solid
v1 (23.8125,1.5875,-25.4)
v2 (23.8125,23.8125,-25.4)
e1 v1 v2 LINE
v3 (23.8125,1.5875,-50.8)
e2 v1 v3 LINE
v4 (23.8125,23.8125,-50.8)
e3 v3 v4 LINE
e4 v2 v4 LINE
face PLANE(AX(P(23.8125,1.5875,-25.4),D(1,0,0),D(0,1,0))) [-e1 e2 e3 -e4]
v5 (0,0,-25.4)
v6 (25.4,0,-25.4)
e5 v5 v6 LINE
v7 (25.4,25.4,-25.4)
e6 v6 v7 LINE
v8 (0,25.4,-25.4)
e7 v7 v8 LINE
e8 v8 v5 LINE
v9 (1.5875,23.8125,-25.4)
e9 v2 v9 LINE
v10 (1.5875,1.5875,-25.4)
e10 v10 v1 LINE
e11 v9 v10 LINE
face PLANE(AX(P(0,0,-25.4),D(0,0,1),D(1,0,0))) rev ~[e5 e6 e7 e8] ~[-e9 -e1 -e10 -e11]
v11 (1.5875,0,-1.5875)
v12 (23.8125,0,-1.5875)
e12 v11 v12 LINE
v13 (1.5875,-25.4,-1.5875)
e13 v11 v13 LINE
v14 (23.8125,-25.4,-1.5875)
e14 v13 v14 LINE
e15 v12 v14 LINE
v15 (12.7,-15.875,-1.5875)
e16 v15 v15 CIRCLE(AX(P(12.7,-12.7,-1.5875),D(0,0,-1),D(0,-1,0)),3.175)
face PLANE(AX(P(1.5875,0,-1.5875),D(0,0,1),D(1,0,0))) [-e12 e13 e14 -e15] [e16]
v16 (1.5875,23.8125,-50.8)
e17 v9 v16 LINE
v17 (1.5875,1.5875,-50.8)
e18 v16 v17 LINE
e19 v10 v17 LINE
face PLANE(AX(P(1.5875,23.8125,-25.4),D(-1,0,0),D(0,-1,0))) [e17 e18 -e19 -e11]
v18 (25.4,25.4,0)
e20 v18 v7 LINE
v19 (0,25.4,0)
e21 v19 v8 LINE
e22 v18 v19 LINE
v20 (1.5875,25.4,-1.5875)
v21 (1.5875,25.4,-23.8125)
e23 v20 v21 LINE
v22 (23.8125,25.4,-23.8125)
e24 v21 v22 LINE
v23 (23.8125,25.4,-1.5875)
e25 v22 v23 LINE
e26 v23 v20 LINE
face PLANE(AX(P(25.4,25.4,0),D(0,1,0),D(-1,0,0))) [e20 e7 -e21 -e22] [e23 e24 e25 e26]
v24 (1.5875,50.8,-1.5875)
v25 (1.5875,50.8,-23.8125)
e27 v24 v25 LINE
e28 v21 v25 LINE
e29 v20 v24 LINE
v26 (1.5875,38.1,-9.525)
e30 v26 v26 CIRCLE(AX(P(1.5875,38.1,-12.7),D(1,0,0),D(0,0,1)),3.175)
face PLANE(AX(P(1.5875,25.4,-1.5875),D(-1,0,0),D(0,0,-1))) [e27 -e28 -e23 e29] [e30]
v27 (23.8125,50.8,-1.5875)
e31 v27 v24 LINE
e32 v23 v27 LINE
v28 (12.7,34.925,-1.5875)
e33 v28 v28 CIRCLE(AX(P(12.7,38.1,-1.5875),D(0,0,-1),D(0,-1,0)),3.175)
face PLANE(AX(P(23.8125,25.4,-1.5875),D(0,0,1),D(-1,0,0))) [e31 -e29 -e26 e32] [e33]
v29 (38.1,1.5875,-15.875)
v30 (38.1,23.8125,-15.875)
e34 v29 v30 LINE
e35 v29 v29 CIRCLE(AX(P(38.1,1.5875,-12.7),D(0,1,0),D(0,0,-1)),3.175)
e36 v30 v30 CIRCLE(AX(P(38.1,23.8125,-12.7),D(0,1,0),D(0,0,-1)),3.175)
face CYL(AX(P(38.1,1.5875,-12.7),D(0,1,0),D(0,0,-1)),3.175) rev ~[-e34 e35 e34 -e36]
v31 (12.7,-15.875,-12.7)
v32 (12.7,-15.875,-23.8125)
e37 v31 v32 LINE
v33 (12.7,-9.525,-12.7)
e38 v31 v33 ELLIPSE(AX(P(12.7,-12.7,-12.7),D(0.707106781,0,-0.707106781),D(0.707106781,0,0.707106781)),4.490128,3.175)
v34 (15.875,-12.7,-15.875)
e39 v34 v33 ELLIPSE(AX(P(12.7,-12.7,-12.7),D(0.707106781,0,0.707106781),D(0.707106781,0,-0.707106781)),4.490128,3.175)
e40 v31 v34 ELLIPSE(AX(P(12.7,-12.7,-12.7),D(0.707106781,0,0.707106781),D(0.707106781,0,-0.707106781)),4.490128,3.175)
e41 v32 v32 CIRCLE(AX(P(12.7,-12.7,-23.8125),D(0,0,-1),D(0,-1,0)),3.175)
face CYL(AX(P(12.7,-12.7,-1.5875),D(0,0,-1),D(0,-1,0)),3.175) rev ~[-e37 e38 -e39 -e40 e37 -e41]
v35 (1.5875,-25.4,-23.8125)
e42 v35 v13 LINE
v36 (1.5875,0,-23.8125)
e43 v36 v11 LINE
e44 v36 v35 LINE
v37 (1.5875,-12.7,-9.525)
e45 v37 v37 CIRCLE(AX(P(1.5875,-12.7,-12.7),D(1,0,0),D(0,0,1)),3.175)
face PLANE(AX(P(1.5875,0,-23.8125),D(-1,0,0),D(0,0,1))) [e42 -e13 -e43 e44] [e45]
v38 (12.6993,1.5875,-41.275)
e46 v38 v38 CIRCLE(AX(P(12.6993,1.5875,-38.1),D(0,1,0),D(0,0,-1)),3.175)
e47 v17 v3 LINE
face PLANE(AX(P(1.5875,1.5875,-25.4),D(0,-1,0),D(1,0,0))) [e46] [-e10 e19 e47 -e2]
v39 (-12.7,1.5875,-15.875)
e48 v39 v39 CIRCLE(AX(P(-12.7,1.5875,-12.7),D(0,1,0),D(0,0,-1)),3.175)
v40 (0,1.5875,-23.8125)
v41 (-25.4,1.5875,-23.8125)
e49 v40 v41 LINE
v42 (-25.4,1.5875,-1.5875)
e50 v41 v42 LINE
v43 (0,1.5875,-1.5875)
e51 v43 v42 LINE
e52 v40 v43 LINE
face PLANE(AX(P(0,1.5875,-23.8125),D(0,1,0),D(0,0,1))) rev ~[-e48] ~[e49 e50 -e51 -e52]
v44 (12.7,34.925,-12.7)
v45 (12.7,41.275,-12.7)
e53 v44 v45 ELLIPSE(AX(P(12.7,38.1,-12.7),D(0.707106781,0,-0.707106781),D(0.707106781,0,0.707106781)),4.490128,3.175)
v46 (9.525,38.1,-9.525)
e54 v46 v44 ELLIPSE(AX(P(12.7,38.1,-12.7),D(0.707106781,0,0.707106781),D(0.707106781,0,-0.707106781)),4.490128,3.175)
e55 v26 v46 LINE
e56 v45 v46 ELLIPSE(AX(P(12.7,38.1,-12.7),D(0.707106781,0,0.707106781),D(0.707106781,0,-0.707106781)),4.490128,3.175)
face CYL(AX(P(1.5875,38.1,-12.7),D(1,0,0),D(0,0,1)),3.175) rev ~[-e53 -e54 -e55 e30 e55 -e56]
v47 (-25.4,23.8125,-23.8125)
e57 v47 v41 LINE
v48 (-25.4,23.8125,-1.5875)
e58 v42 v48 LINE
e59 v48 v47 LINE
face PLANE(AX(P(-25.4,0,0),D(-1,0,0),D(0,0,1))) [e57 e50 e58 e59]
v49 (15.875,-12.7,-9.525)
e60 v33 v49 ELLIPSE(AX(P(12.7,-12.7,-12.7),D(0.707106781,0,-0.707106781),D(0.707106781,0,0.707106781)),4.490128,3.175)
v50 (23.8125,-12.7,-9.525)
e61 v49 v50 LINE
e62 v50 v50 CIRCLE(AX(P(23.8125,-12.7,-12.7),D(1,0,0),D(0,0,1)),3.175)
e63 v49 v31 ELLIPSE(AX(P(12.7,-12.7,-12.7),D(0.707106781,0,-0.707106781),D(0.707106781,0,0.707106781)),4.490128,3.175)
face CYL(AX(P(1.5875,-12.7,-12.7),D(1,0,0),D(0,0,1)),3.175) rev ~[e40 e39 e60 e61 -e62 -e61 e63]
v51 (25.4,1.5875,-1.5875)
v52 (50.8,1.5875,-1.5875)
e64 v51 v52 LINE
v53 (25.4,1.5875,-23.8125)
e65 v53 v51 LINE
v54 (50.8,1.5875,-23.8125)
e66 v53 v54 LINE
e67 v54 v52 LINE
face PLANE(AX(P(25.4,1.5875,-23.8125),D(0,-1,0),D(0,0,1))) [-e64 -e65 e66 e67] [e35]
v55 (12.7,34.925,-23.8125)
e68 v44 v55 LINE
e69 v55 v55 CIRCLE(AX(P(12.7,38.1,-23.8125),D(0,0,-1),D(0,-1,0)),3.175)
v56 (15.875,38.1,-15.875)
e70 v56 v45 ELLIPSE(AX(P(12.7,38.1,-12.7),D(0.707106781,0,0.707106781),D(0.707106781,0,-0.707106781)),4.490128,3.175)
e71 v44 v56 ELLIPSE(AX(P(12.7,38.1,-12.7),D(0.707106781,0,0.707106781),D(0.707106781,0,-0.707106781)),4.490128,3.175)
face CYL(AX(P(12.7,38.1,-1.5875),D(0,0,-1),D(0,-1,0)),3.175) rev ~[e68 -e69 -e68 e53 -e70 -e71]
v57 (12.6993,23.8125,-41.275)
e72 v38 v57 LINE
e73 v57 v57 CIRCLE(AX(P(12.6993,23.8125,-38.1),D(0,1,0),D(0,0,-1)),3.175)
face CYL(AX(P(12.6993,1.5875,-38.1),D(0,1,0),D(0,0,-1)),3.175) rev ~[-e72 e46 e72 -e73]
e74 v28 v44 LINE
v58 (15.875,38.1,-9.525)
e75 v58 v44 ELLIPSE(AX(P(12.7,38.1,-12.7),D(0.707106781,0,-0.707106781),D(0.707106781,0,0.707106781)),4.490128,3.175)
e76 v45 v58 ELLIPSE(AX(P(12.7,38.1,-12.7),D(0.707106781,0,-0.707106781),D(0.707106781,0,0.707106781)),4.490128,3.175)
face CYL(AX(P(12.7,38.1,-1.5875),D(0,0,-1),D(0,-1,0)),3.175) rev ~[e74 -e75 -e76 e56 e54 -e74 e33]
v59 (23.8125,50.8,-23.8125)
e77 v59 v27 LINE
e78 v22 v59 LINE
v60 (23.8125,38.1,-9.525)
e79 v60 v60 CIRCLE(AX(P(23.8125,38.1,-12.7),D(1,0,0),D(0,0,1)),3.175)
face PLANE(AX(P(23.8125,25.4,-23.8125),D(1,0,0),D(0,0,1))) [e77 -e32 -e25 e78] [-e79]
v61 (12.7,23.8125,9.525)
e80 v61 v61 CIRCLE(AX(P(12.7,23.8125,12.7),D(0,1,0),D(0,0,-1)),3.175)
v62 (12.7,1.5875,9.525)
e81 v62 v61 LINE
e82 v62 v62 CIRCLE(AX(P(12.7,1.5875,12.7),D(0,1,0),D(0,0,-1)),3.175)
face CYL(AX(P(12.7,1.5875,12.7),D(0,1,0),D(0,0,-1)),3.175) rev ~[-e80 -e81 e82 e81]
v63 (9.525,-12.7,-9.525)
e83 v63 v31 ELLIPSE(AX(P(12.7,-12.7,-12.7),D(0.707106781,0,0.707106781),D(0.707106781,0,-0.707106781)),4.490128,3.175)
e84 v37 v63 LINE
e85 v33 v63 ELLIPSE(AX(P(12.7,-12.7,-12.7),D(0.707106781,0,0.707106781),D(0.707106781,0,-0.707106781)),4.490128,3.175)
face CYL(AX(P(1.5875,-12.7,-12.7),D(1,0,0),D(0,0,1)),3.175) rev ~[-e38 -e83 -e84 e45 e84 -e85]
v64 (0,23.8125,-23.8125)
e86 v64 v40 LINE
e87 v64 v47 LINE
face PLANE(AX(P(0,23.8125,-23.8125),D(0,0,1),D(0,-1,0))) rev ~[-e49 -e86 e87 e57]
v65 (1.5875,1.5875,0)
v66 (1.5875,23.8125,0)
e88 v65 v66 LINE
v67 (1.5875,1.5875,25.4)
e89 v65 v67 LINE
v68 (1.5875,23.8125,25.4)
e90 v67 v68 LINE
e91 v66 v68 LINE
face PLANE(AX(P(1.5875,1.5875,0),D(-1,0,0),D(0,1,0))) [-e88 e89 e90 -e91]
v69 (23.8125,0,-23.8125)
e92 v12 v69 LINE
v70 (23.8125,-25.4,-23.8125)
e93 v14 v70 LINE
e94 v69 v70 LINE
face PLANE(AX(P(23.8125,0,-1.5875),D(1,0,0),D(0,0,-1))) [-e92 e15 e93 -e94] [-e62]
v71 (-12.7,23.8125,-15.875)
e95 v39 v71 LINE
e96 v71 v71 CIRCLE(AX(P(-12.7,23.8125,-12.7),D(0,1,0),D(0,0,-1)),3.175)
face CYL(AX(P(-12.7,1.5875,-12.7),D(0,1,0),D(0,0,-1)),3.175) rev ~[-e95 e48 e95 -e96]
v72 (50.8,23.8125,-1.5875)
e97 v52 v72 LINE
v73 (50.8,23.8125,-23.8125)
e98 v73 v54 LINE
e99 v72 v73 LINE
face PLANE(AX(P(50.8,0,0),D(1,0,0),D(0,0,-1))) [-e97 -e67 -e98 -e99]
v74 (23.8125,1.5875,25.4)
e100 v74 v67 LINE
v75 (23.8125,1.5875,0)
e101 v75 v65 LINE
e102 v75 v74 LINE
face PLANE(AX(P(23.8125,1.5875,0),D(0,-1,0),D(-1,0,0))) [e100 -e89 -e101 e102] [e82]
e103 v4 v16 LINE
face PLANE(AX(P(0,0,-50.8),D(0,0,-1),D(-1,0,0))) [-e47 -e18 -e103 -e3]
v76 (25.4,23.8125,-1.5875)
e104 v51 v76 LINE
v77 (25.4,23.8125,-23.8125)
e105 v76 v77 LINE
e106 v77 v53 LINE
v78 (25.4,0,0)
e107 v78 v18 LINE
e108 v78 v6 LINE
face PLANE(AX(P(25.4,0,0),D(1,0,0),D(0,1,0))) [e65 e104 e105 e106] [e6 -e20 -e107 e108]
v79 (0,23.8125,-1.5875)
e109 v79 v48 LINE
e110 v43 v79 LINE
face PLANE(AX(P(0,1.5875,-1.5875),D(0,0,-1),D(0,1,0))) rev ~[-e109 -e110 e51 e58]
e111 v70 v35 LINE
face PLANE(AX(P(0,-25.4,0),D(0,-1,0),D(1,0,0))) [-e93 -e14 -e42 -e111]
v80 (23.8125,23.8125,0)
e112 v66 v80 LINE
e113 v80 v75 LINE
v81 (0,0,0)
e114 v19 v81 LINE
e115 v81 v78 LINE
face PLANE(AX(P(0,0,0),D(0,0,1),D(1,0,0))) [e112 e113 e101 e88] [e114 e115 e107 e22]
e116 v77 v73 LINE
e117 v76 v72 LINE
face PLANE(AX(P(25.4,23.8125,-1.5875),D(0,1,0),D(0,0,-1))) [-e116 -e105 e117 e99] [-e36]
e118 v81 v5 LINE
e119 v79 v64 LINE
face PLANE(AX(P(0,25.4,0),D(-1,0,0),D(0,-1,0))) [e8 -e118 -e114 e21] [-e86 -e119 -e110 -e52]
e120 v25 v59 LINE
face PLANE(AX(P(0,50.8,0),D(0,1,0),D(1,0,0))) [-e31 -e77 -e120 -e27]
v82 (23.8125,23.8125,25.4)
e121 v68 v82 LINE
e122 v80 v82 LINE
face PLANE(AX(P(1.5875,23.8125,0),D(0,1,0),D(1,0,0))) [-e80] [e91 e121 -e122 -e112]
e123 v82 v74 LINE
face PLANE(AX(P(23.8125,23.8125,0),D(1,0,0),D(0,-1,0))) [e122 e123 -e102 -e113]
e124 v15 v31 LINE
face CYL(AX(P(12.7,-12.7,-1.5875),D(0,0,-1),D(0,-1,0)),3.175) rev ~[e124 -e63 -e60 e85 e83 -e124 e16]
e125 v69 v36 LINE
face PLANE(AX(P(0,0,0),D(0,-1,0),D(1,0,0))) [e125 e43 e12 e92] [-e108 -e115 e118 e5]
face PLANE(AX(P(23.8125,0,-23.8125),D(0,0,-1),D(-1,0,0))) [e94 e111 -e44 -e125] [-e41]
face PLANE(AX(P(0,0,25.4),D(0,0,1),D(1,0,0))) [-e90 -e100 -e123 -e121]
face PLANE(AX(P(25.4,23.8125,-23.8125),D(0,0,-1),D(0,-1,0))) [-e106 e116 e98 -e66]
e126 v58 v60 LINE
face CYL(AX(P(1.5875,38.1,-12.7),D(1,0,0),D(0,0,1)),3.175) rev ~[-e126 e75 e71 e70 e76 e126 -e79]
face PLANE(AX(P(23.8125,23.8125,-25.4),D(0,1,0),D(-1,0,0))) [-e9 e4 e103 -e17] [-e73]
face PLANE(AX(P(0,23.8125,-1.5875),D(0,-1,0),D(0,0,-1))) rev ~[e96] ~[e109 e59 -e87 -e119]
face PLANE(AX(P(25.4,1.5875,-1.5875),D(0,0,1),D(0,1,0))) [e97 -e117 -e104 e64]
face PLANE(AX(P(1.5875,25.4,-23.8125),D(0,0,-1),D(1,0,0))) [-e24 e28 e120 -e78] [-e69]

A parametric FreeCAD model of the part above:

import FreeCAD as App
import Part
import Sketcher

V = App.Vector
Q = App.Units.Quantity

doc = App.newDocument("Part")
body = doc.addObject("PartDesign::Body", "Body")

sketch1 = body.newObject("Sketcher::SketchObject", "Sketch")
sketch1.AttachmentSupport = (doc.getObject("XY_Plane"), [""])
sketch1.MapMode = "FlatFace"
sketch1.addGeometry([
    Part.LineSegment(V(0, 25, 0), V(0, 0, 0)),
    Part.LineSegment(V(0, 0, 0), V(25, 0, 0)),
    Part.LineSegment(V(25, 0, 0), V(25, 25, 0)),
    Part.LineSegment(V(25, 25, 0), V(0, 25, 0)),
], False)
sketch1.addConstraint([
    Sketcher.Constraint("Coincident", 0, 2, 1, 1),
    Sketcher.Constraint("Coincident", 1, 2, 2, 1),
    Sketcher.Constraint("Coincident", 2, 2, 3, 1),
    Sketcher.Constraint("Coincident", 3, 2, 0, 1),
    Sketcher.Constraint("Vertical", 0),
    Sketcher.Constraint("Horizontal", 1),
    Sketcher.Constraint("Vertical", 2),
    Sketcher.Constraint("Horizontal", 3),
    Sketcher.Constraint("Coincident", 0, 2, -1, 1),
    Sketcher.Constraint("Equal", 3, 0),
    Sketcher.Constraint("DistanceX", 1, 1, 1, 2, Q("1 in")),
])
pad1 = body.newObject("PartDesign::Pad", "Pad")
pad1.Profile = sketch1
pad1.Length = Q("1 in")
pad1.Reversed = True

sketch2 = body.newObject("Sketcher::SketchObject", "Sketch001")
sketch2.AttachmentSupport = (doc.getObject("XY_Plane"), [""])
sketch2.MapMode = "FlatFace"
sketch2.addGeometry([
    Part.LineSegment(V(24, 24, 0), V(2, 24, 0)),
    Part.LineSegment(V(2, 24, 0), V(2, 2, 0)),
    Part.LineSegment(V(2, 2, 0), V(24, 2, 0)),
    Part.LineSegment(V(24, 2, 0), V(24, 24, 0)),
], False)
sketch2.addConstraint([
    Sketcher.Constraint("Coincident", 0, 2, 1, 1),
    Sketcher.Constraint("Coincident", 1, 2, 2, 1),
    Sketcher.Constraint("Coincident", 2, 2, 3, 1),
    Sketcher.Constraint("Coincident", 3, 2, 0, 1),
    Sketcher.Constraint("Horizontal", 0),
    Sketcher.Constraint("Vertical", 1),
    Sketcher.Constraint("Horizontal", 2),
    Sketcher.Constraint("Vertical", 3),
    Sketcher.Constraint("Equal", 2, 1),
    Sketcher.Constraint("DistanceX", -1, 1, 0, 2, Q("0.0625 in")),
    Sketcher.Constraint("DistanceY", -1, 1, 1, 2, Q("0.0625 in")),
    Sketcher.Constraint("DistanceX", 0, 2, 0, 1, Q("0.875 in")),
])
pad2 = body.newObject("PartDesign::Pad", "Pad001")
pad2.Profile = sketch2
pad2.Length = Q("1 in")

sketch3 = body.newObject("Sketcher::SketchObject", "Sketch002")
sketch3.AttachmentSupport = (doc.getObject("YZ_Plane"), [""])
sketch3.MapMode = "FlatFace"
sketch3.AttachmentOffset = App.Placement(V(0, 0, 1 * 25.4), App.Rotation())
sketch3.addGeometry([
    Part.LineSegment(V(2, -24, 0), V(24, -24, 0)),
    Part.LineSegment(V(24, -24, 0), V(24, -2, 0)),
    Part.LineSegment(V(24, -2, 0), V(2, -2, 0)),
    Part.LineSegment(V(2, -2, 0), V(2, -24, 0)),
], False)
sketch3.addConstraint([
    Sketcher.Constraint("Coincident", 0, 2, 1, 1),
    Sketcher.Constraint("Coincident", 1, 2, 2, 1),
    Sketcher.Constraint("Coincident", 2, 2, 3, 1),
    Sketcher.Constraint("Coincident", 3, 2, 0, 1),
    Sketcher.Constraint("Horizontal", 0),
    Sketcher.Constraint("Vertical", 1),
    Sketcher.Constraint("Horizontal", 2),
    Sketcher.Constraint("Vertical", 3),
    Sketcher.Constraint("Equal", 2, 1),
    Sketcher.Constraint("DistanceY", 1, 2, -1, 1, Q("0.0625 in")),
    Sketcher.Constraint("DistanceX", -1, 1, 2, 2, Q("0.0625 in")),
    Sketcher.Constraint("DistanceX", 0, 1, 0, 2, Q("0.875 in")),
])
pad3 = body.newObject("PartDesign::Pad", "Pad002")
pad3.Profile = sketch3
pad3.Length = Q("1 in")

sketch4 = body.newObject("Sketcher::SketchObject", "Sketch003")
sketch4.AttachmentSupport = (doc.getObject("XZ_Plane"), [""])
sketch4.MapMode = "FlatFace"
sketch4.AttachmentOffset = App.Placement(V(0, 0, -1 * 25.4), App.Rotation())
sketch4.addGeometry([
    Part.LineSegment(V(24, -24, 0), V(2, -24, 0)),
    Part.LineSegment(V(2, -24, 0), V(2, -2, 0)),
    Part.LineSegment(V(2, -2, 0), V(24, -2, 0)),
    Part.LineSegment(V(24, -2, 0), V(24, -24, 0)),
], False)
sketch4.addConstraint([
    Sketcher.Constraint("Coincident", 0, 2, 1, 1),
    Sketcher.Constraint("Coincident", 1, 2, 2, 1),
    Sketcher.Constraint("Coincident", 2, 2, 3, 1),
    Sketcher.Constraint("Coincident", 3, 2, 0, 1),
    Sketcher.Constraint("Horizontal", 0),
    Sketcher.Constraint("Vertical", 1),
    Sketcher.Constraint("Horizontal", 2),
    Sketcher.Constraint("Vertical", 3),
    Sketcher.Constraint("Equal", 2, 1),
    Sketcher.Constraint("DistanceX", -1, 1, 0, 2, Q("0.0625 in")),
    Sketcher.Constraint("DistanceY", 1, 2, -1, 1, Q("0.0625 in")),
    Sketcher.Constraint("DistanceX", 0, 2, 0, 1, Q("0.875 in")),
])
pad4 = body.newObject("PartDesign::Pad", "Pad003")
pad4.Profile = sketch4
pad4.Length = Q("1 in")
pad4.Reversed = True

sketch5 = body.newObject("Sketcher::SketchObject", "Sketch004")
sketch5.AttachmentSupport = (doc.getObject("YZ_Plane"), [""])
sketch5.MapMode = "FlatFace"
sketch5.addGeometry([
    Part.LineSegment(V(24, -2, 0), V(24, -24, 0)),
    Part.LineSegment(V(24, -24, 0), V(2, -24, 0)),
    Part.LineSegment(V(2, -24, 0), V(2, -2, 0)),
    Part.LineSegment(V(2, -2, 0), V(24, -2, 0)),
], False)
sketch5.addConstraint([
    Sketcher.Constraint("Coincident", 0, 2, 1, 1),
    Sketcher.Constraint("Coincident", 1, 2, 2, 1),
    Sketcher.Constraint("Coincident", 2, 2, 3, 1),
    Sketcher.Constraint("Coincident", 3, 2, 0, 1),
    Sketcher.Constraint("Vertical", 0),
    Sketcher.Constraint("Horizontal", 1),
    Sketcher.Constraint("Vertical", 2),
    Sketcher.Constraint("Horizontal", 3),
    Sketcher.Constraint("Equal", 3, 0),
    Sketcher.Constraint("DistanceX", -1, 1, 1, 2, Q("0.0625 in")),
    Sketcher.Constraint("DistanceY", 2, 2, -1, 1, Q("0.0625 in")),
    Sketcher.Constraint("DistanceX", 1, 2, 1, 1, Q("0.875 in")),
])
pad5 = body.newObject("PartDesign::Pad", "Pad004")
pad5.Profile = sketch5
pad5.Length = Q("1 in")
pad5.Reversed = True

sketch6 = body.newObject("Sketcher::SketchObject", "Sketch005")
sketch6.AttachmentSupport = (doc.getObject("XY_Plane"), [""])
sketch6.MapMode = "FlatFace"
sketch6.AttachmentOffset = App.Placement(V(0, 0, -1 * 25.4), App.Rotation())
sketch6.addGeometry([
    Part.LineSegment(V(2, 2, 0), V(2, 24, 0)),
    Part.LineSegment(V(2, 24, 0), V(24, 24, 0)),
    Part.LineSegment(V(24, 24, 0), V(24, 2, 0)),
    Part.LineSegment(V(24, 2, 0), V(2, 2, 0)),
], False)
sketch6.addConstraint([
    Sketcher.Constraint("Coincident", 0, 2, 1, 1),
    Sketcher.Constraint("Coincident", 1, 2, 2, 1),
    Sketcher.Constraint("Coincident", 2, 2, 3, 1),
    Sketcher.Constraint("Coincident", 3, 2, 0, 1),
    Sketcher.Constraint("Vertical", 0),
    Sketcher.Constraint("Horizontal", 1),
    Sketcher.Constraint("Vertical", 2),
    Sketcher.Constraint("Horizontal", 3),
    Sketcher.Constraint("Equal", 3, 0),
    Sketcher.Constraint("DistanceX", -1, 1, 0, 2, Q("0.0625 in")),
    Sketcher.Constraint("DistanceY", -1, 1, 2, 2, Q("0.0625 in")),
    Sketcher.Constraint("DistanceX", 1, 1, 1, 2, Q("0.875 in")),
])
pad6 = body.newObject("PartDesign::Pad", "Pad005")
pad6.Profile = sketch6
pad6.Length = Q("1 in")
pad6.Reversed = True

sketch7 = body.newObject("Sketcher::SketchObject", "Sketch006")
sketch7.AttachmentSupport = (doc.getObject("XZ_Plane"), [""])
sketch7.MapMode = "FlatFace"
sketch7.addGeometry([
    Part.LineSegment(V(2, -24, 0), V(24, -24, 0)),
    Part.LineSegment(V(24, -24, 0), V(24, -2, 0)),
    Part.LineSegment(V(24, -2, 0), V(2, -2, 0)),
    Part.LineSegment(V(2, -2, 0), V(2, -24, 0)),
], False)
sketch7.addConstraint([
    Sketcher.Constraint("Coincident", 0, 2, 1, 1),
    Sketcher.Constraint("Coincident", 1, 2, 2, 1),
    Sketcher.Constraint("Coincident", 2, 2, 3, 1),
    Sketcher.Constraint("Coincident", 3, 2, 0, 1),
    Sketcher.Constraint("Horizontal", 0),
    Sketcher.Constraint("Vertical", 1),
    Sketcher.Constraint("Horizontal", 2),
    Sketcher.Constraint("Vertical", 3),
    Sketcher.Constraint("Equal", 2, 1),
    Sketcher.Constraint("DistanceY", 1, 2, -1, 1, Q("0.0625 in")),
    Sketcher.Constraint("DistanceX", -1, 1, 2, 2, Q("0.0625 in")),
    Sketcher.Constraint("DistanceX", 0, 1, 0, 2, Q("0.875 in")),
])
pad7 = body.newObject("PartDesign::Pad", "Pad006")
pad7.Profile = sketch7
pad7.Length = Q("1 in")

sketch8 = body.newObject("Sketcher::SketchObject", "Sketch007")
sketch8.AttachmentSupport = (doc.getObject("XZ_Plane"), [""])
sketch8.MapMode = "FlatFace"
sketch8.AttachmentOffset = App.Placement(V(0, 0, -0.0625 * 25.4), App.Rotation())
sketch8.addGeometry([
    Part.Circle(V(-12.7, -12.7, 0), V(0, 0, 1), 3.2),
    Part.Circle(V(38.1, -12.7, 0), V(0, 0, 1), 3.2),
    Part.Circle(V(12.7, -38.1, 0), V(0, 0, 1), 3.2),
    Part.Circle(V(12.7, 12.7, 0), V(0, 0, 1), 3.2),
], False)
sketch8.addConstraint([
    Sketcher.Constraint("Equal", 0, 1),
    Sketcher.Constraint("Equal", 1, 2),
    Sketcher.Constraint("Equal", 2, 3),
    Sketcher.Constraint("Symmetric", 0, 3, 3, 3, -1, 1),
    Sketcher.Constraint("Horizontal", 0, 3, 1, 3),
    Sketcher.Constraint("Diameter", 0, Q("0.25 in")),
    Sketcher.Constraint("DistanceX", 0, 3, 1, 3, Q("2 in")),
    Sketcher.Constraint("DistanceY", 2, 3, 0, 3, Q("1 in")),
    Sketcher.Constraint("DistanceX", 0, 3, 3, 3, Q("1 in")),
    Sketcher.Constraint("DistanceY", 0, 3, 3, 3, Q("1 in")),
    Sketcher.Constraint("DistanceX", -1, 1, 2, 3, 12.6993),
])
doc.recompute()
hole = body.newObject("PartDesign::Hole", "Hole")
hole.Profile = sketch8
hole.ThreadType = "None"
hole.Diameter = Q("0.25 in")
hole.DepthType = "Dimension"
hole.Depth = Q("1 in")
hole.DrillPoint = "Angled"
hole.DrillPointAngle = 118

sketch9 = body.newObject("Sketcher::SketchObject", "Sketch008")
sketch9.AttachmentSupport = (doc.getObject("YZ_Plane"), [""])
sketch9.MapMode = "FlatFace"
sketch9.AttachmentOffset = App.Placement(V(0, 0, 0.0625 * 25.4), App.Rotation())
sketch9.addGeometry([
    Part.Circle(V(-12.7, -12.7, 0), V(0, 0, 1), 3.2),
    Part.Circle(V(38.1, -12.7, 0), V(0, 0, 1), 3.2),
], False)
sketch9.addConstraint([
    Sketcher.Constraint("Equal", 0, 1),
    Sketcher.Constraint("Horizontal", 0, 3, 1, 3),
    Sketcher.Constraint("Diameter", 0, Q("0.25 in")),
    Sketcher.Constraint("DistanceX", 0, 3, 1, 3, Q("2 in")),
    Sketcher.Constraint("DistanceX", 0, 3, -1, 1, Q("0.5 in")),
    Sketcher.Constraint("DistanceY", 0, 3, -1, 1, Q("0.5 in")),
])
doc.recompute()
hole2 = body.newObject("PartDesign::Hole", "Hole001")
hole2.Profile = sketch9
hole2.ThreadType = "None"
hole2.Diameter = Q("0.25 in")
hole2.DepthType = "Dimension"
hole2.Depth = Q("1 in")
hole2.DrillPoint = "Angled"
hole2.DrillPointAngle = 118
hole2.Reversed = True

sketch10 = body.newObject("Sketcher::SketchObject", "Sketch009")
sketch10.AttachmentSupport = (doc.getObject("XY_Plane"), [""])
sketch10.MapMode = "FlatFace"
sketch10.AttachmentOffset = App.Placement(V(0, 0, -0.0625 * 25.4), App.Rotation())
sketch10.addGeometry([
    Part.Circle(V(12.7, -12.7, 0), V(0, 0, 1), 3.2),
    Part.Circle(V(12.7, 38.1, 0), V(0, 0, 1), 3.2),
], False)
sketch10.addConstraint([
    Sketcher.Constraint("Equal", 0, 1),
    Sketcher.Constraint("Vertical", 0, 3, 1, 3),
    Sketcher.Constraint("Diameter", 0, Q("0.25 in")),
    Sketcher.Constraint("DistanceY", 0, 3, 1, 3, Q("2 in")),
    Sketcher.Constraint("DistanceX", -1, 1, 0, 3, Q("0.5 in")),
    Sketcher.Constraint("DistanceY", 0, 3, -1, 1, Q("0.5 in")),
])
doc.recompute()
hole3 = body.newObject("PartDesign::Hole", "Hole002")
hole3.Profile = sketch10
hole3.ThreadType = "None"
hole3.Diameter = Q("0.25 in")
hole3.DepthType = "Dimension"
hole3.Depth = Q("1 in")
hole3.DrillPoint = "Angled"
hole3.DrillPointAngle = 118

doc.recompute()
